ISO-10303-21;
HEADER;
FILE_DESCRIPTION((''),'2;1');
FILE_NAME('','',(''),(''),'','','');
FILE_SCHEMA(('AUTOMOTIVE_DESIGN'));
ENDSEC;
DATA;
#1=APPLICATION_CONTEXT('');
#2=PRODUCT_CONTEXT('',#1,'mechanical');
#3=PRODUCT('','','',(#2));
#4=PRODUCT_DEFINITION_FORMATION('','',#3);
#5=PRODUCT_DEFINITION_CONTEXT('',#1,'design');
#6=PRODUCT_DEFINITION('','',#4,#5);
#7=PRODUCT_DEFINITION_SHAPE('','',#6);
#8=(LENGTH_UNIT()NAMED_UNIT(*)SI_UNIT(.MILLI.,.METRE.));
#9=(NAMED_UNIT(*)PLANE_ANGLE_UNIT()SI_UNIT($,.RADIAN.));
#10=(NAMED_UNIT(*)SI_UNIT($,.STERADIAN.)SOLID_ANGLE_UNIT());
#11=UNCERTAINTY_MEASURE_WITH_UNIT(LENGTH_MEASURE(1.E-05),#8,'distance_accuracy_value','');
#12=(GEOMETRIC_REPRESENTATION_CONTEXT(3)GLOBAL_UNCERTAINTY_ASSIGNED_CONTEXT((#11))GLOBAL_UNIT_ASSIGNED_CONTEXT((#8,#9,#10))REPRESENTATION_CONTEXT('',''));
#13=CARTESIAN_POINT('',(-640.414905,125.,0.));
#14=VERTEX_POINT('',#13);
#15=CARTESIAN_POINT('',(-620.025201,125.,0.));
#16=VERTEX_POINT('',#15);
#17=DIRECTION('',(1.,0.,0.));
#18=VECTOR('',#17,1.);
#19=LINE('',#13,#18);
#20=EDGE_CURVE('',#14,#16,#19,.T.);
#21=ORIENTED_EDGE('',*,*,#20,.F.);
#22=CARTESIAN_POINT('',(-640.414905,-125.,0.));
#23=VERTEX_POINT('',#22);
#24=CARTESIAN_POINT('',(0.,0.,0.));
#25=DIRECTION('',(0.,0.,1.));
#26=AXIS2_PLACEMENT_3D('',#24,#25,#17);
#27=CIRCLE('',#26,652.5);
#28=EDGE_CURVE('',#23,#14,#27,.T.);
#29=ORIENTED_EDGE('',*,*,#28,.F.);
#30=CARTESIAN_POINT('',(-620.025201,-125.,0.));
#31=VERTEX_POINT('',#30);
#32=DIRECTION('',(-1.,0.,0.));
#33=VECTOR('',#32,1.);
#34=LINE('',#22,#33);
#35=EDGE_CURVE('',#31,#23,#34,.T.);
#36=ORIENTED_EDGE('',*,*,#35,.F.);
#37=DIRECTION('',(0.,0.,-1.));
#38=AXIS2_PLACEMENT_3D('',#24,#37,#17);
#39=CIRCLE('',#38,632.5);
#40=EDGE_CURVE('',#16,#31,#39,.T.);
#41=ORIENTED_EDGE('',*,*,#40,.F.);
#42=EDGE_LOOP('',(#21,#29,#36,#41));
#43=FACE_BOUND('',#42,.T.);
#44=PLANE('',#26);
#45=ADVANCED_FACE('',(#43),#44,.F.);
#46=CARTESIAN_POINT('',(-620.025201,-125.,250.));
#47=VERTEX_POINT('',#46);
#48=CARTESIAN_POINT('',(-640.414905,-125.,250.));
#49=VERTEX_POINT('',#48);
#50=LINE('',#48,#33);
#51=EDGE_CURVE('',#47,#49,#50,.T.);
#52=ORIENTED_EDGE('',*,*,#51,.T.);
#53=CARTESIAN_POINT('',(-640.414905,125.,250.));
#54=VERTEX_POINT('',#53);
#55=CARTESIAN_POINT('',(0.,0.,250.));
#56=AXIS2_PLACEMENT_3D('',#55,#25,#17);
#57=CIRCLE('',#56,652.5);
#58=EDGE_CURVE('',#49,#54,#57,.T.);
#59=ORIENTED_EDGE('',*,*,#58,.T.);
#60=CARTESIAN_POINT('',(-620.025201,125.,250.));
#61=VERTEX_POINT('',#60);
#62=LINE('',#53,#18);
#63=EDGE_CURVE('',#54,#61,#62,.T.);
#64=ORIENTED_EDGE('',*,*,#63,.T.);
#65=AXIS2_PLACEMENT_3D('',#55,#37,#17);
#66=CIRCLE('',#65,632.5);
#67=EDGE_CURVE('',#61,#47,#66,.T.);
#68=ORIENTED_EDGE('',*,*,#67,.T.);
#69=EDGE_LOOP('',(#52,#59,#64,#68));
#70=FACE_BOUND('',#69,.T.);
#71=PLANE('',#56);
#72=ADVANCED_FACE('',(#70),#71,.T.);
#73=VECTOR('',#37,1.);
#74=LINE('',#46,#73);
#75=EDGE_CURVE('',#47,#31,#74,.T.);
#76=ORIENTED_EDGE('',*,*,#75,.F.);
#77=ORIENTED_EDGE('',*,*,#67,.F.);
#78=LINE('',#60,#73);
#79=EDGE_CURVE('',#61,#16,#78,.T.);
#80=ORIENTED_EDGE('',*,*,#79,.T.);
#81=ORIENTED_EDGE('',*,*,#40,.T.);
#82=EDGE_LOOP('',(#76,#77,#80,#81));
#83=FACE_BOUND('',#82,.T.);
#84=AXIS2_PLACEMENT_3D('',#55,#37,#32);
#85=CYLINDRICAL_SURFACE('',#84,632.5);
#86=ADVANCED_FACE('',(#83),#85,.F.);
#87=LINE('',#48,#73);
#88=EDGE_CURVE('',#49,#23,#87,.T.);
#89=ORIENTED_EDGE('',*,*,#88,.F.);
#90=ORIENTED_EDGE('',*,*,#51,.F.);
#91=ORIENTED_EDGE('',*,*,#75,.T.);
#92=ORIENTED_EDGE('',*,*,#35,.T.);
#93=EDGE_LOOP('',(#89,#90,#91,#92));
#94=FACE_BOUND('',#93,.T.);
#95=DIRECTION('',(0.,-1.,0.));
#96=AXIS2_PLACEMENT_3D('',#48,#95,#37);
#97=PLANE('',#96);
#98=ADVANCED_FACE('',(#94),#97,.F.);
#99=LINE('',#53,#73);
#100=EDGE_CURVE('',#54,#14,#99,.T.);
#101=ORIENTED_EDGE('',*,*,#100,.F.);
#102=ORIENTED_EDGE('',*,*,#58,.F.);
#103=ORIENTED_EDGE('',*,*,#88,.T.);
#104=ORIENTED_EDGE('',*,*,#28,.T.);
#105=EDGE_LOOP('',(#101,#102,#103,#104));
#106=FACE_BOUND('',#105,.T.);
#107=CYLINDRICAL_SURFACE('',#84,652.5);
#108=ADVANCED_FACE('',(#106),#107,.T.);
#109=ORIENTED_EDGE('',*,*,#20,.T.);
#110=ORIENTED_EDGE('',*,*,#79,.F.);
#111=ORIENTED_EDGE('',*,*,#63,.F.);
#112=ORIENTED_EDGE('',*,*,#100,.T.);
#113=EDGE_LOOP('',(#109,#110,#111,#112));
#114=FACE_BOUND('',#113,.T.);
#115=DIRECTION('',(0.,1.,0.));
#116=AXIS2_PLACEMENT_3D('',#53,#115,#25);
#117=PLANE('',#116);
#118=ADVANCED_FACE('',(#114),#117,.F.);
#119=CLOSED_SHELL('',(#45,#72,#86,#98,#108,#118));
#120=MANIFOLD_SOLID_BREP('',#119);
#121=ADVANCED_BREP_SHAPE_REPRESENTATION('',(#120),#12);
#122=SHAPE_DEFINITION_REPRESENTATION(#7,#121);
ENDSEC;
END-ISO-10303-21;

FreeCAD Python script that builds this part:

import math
import FreeCAD as App
import Part
import Sketcher

V = App.Vector
Q = App.Units.Quantity

doc = App.newDocument("Part")
params = doc.addObject("Spreadsheet::Sheet", "Params")
for row, (alias, value) in enumerate([
    ("sketch1_radius", "652.5 mm"),
    ("sketch1_radius2", "632.5 mm"),
    ("pad1_length", "250 mm"),
], start=1):
    params.set(f"A{row}", alias)
    params.set(f"B{row}", "=" + value)
    params.setAlias(f"B{row}", alias)

body = doc.addObject("PartDesign::Body", "Body")

# Sketch on XY plane
sketch1 = body.newObject("Sketcher::SketchObject", "Sketch")
sketch1.AttachmentSupport = (doc.getObject("XY_Plane"), [""])
sketch1.MapMode = "FlatFace"
sketch1.addGeometry([
    Part.LineSegment(V(-620.025201, -125, 0), V(-640.414905, -125, 0)),
    Part.ArcOfCircle(Part.Circle(V(0, 0, 0), V(0, 0, 1), 652.5), math.radians(-168.955527), math.radians(168.955527)),
    Part.LineSegment(V(-640.414905, 125, 0), V(-620.025201, 125, 0)),
    Part.ArcOfCircle(Part.Circle(V(0, 0, 0), V(0, 0, 1), 632.5), math.radians(-168.601688), math.radians(168.601688)),
], False)
sketch1.addConstraint([
    Sketcher.Constraint("Coincident", 0, 2, 1, 1),
    Sketcher.Constraint("Coincident", 1, 2, 2, 1),
    Sketcher.Constraint("Coincident", 2, 2, 3, 2),
    Sketcher.Constraint("Coincident", 3, 1, 0, 1),
    Sketcher.Constraint("Horizontal", 0),
    Sketcher.Constraint("Horizontal", 2),
    Sketcher.Constraint("Coincident", 1, 3, -1, 1),
    Sketcher.Constraint("Coincident", 3, 3, -1, 1),
    Sketcher.Constraint("Equal", 0, 2),
    Sketcher.Constraint("Radius", 1, Q("652.5 mm")),
    Sketcher.Constraint("Radius", 3, Q("632.5 mm")),
    Sketcher.Constraint("DistanceY", 0, 2, -1, 1, Q("125 mm")),
])
sketch1.setExpression("Constraints[9]", "Params.sketch1_radius")
sketch1.setExpression("Constraints[10]", "Params.sketch1_radius2")
pad1 = body.newObject("PartDesign::Pad", "Pad")
pad1.Profile = sketch1
pad1.setExpression("Length", "Params.pad1_length")

doc.recompute()
